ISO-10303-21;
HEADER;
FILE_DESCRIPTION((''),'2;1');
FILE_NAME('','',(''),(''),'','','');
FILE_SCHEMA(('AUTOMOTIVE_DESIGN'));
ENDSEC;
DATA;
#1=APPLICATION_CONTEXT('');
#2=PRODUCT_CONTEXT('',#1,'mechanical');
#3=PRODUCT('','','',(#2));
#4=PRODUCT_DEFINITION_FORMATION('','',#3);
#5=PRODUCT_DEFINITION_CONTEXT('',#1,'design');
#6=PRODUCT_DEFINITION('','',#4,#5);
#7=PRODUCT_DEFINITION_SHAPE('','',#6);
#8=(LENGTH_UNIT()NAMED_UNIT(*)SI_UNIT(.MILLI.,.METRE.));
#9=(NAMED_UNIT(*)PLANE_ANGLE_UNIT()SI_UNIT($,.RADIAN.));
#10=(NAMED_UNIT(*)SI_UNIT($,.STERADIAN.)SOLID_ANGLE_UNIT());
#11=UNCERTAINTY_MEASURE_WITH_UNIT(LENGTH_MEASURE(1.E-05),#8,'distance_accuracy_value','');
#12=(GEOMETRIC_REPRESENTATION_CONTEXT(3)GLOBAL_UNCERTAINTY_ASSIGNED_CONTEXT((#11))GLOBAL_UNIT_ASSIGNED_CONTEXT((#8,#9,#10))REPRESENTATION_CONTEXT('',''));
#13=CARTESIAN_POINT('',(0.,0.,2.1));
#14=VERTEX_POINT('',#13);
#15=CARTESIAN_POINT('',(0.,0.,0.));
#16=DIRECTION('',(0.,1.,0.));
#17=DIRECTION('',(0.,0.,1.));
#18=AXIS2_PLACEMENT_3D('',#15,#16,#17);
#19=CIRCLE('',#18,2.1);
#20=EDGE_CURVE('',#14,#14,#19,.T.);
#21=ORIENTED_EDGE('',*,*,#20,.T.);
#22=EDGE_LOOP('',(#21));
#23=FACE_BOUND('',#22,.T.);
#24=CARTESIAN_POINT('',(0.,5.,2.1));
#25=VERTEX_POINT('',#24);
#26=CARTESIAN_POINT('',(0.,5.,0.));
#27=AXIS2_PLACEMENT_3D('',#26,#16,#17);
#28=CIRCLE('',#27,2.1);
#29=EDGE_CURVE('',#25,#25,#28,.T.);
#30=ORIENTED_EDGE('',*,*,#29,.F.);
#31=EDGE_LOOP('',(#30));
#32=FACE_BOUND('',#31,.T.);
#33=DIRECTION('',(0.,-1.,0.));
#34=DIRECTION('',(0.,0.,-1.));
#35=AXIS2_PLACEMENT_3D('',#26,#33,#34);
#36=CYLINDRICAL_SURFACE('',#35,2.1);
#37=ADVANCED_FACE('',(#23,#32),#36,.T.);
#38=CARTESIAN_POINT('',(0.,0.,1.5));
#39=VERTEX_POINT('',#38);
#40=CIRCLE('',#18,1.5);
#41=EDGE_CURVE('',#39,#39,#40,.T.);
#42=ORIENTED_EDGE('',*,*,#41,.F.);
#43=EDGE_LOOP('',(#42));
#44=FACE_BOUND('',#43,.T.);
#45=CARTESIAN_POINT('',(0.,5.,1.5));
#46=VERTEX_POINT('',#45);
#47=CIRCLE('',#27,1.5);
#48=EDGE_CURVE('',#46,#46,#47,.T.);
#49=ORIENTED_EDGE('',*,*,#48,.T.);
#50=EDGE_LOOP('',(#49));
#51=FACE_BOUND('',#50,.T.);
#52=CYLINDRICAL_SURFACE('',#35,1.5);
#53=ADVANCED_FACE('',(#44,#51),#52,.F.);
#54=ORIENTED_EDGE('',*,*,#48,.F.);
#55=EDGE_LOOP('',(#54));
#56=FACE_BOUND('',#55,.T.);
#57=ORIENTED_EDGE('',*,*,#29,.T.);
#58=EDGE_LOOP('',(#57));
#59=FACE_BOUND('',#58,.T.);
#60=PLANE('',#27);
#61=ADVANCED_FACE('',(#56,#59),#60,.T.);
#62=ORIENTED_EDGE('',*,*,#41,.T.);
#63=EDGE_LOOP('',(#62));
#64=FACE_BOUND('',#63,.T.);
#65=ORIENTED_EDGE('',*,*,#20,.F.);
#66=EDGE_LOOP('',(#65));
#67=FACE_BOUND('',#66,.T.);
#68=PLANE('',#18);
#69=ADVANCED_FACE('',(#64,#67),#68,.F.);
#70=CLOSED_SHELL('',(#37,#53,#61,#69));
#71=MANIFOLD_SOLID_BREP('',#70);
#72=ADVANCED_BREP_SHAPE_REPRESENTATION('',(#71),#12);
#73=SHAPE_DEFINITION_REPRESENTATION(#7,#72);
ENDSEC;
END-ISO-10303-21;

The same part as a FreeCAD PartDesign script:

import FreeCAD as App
import Part
import Sketcher
from FreeCAD import Vector

doc = App.newDocument("Part")
body = doc.addObject("PartDesign::Body", "Body")

# Sketch on XZ plane
sketch1 = body.newObject("Sketcher::SketchObject", "Sketch")
sketch1.AttachmentSupport = (doc.getObject("XZ_Plane"), [""])
sketch1.MapMode = "FlatFace"
sketch1.addGeometry([
    Part.Circle(Vector(0, 0, 0), Vector(0, 0, 1), 2.1),
    Part.Circle(Vector(0, 0, 0), Vector(0, 0, 1), 1.5),
], False)
sketch1.addConstraint([
    Sketcher.Constraint("Coincident", 0, 3, -1, 1),
    Sketcher.Constraint("Coincident", 1, 3, -1, 1),
    Sketcher.Constraint("Diameter", 1, 3.0),
    Sketcher.Constraint("Diameter", 0, 4.2),
])
pad1 = body.newObject("PartDesign::Pad", "Pad")
pad1.Profile = sketch1
pad1.Length = 5
pad1.Reversed = True

doc.recompute()
